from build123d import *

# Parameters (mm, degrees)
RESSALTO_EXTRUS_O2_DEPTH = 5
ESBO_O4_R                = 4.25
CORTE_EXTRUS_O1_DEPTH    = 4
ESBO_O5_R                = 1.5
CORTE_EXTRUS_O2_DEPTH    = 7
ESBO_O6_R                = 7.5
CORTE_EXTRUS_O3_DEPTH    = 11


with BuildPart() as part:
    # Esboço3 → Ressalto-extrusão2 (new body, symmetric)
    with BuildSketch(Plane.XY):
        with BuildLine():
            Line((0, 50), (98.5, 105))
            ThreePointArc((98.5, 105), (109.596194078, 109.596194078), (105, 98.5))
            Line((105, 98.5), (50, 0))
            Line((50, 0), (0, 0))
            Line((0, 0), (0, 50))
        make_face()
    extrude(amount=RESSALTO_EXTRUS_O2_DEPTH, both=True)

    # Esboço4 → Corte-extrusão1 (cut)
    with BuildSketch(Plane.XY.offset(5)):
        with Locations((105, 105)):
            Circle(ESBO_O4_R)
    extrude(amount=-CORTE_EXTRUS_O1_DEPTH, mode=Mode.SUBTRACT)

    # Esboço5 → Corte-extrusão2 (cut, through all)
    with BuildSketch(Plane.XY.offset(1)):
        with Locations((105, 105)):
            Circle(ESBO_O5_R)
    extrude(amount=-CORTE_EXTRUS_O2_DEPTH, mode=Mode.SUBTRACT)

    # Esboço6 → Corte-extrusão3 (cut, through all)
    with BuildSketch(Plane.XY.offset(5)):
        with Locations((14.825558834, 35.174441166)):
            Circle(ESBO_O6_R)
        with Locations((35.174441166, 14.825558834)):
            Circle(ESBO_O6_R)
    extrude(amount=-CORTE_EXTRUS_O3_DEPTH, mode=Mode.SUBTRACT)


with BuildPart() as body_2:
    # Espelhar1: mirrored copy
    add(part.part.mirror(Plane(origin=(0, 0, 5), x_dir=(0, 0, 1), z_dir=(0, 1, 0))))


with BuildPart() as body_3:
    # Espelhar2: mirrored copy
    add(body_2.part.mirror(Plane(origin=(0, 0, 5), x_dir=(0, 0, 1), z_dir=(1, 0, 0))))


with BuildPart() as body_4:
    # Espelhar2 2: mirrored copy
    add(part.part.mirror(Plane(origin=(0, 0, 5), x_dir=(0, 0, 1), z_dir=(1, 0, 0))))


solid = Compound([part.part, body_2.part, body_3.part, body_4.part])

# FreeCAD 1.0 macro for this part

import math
import FreeCAD as App
import Part
import Sketcher

V = App.Vector

doc = App.newDocument("Part")
params = doc.addObject("Spreadsheet::Sheet", "Params")
for row, (alias, value) in enumerate([
    ("sketch1_radius", "6.5 mm"),
    ("sketch1_width", "50 mm"),
    ("pad1_length", "10 mm"),
    ("sketch2_diameter", "8.5 mm"),
    ("pocket1_length", "4 mm"),
    ("sketch3_diameter", "3 mm"),
    ("sketch4_diameter", "15 mm"),
], start=1):
    params.set(f"A{row}", alias)
    params.set(f"B{row}", "=" + value)
    params.setAlias(f"B{row}", alias)

body = doc.addObject("PartDesign::Body", "Body")

# Sketch on XY plane
sketch1 = body.newObject("Sketcher::SketchObject", "Sketch")
sketch1.AttachmentSupport = (doc.getObject("XY_Plane"), [""])
sketch1.MapMode = "FlatFace"
sketch1.addGeometry([
    Part.LineSegment(V(98, 105, 0), V(0, 50, 0)),  # 0
    Part.LineSegment(V(0, 50, 0), V(0, 0, 0)),  # 1
    Part.LineSegment(V(0, 0, 0), V(50, 0, 0)),  # 2
    Part.LineSegment(V(50, 0, 0), V(105, 98, 0)),  # 3
    Part.ArcOfCircle(Part.Circle(V(105, 105, 0), V(0, 0, 1), 6), math.radians(-90), math.radians(180)),  # 4
], False)
sketch1.addConstraint([
    Sketcher.Constraint("Coincident", 0, 2, 1, 1),
    Sketcher.Constraint("Coincident", 1, 2, 2, 1),
    Sketcher.Constraint("Coincident", 2, 2, 3, 1),
    Sketcher.Constraint("Coincident", 3, 2, 4, 1),
    Sketcher.Constraint("Coincident", 4, 2, 0, 1),
    Sketcher.Constraint("Vertical", 1),
    Sketcher.Constraint("Horizontal", 2),
    Sketcher.Constraint("Coincident", 1, 2, -1, 1),
    Sketcher.Constraint("Vertical", 4, 3, 3, 2),
    Sketcher.Constraint("Equal", 2, 1),
    Sketcher.Constraint("Equal", 0, 3),
    Sketcher.Constraint("Radius", 4, 6.5),
    Sketcher.Constraint("DistanceX", 2, 1, 2, 2, 50.0),
    Sketcher.Constraint("DistanceX", -1, 1, 4, 3, 105.0),
    Sketcher.Constraint("DistanceY", -1, 1, 4, 3, 105.0),
])
sketch1.setExpression("Constraints[11]", "Params.sketch1_radius")
sketch1.setExpression("Constraints[12]", "Params.sketch1_width")
pad1 = body.newObject("PartDesign::Pad", "Pad")
pad1.Profile = sketch1
pad1.setExpression("Length", "Params.pad1_length")
pad1.Midplane = True

# Sketch on XY plane
sketch2 = body.newObject("Sketcher::SketchObject", "Sketch001")
sketch2.AttachmentSupport = (doc.getObject("XY_Plane"), [""])
sketch2.MapMode = "FlatFace"
sketch2.AttachmentOffset = App.Placement(V(0, 0, 5), App.Rotation())
sketch2.addGeometry(Part.Circle(V(105, 105, 0), V(0, 0, 1), 4.2), False)
sketch2.addConstraint([
    Sketcher.Constraint("Diameter", 0, 8.5),
    Sketcher.Constraint("DistanceX", -1, 1, 0, 3, 105.0),
    Sketcher.Constraint("DistanceY", -1, 1, 0, 3, 105.0),
])
sketch2.setExpression("Constraints[0]", "Params.sketch2_diameter")
pocket1 = body.newObject("PartDesign::Pocket", "Pocket")
pocket1.Profile = sketch2
pocket1.setExpression("Length", "Params.pocket1_length")

# Sketch on XY plane
sketch3 = body.newObject("Sketcher::SketchObject", "Sketch002")
sketch3.AttachmentSupport = (doc.getObject("XY_Plane"), [""])
sketch3.MapMode = "FlatFace"
sketch3.AttachmentOffset = App.Placement(V(0, 0, 1), App.Rotation())
sketch3.addGeometry(Part.Circle(V(105, 105, 0), V(0, 0, 1), 1.5), False)
sketch3.addConstraint([
    Sketcher.Constraint("Diameter", 0, 3.0),
    Sketcher.Constraint("DistanceX", -1, 1, 0, 3, 105.0),
    Sketcher.Constraint("DistanceY", -1, 1, 0, 3, 105.0),
])
sketch3.setExpression("Constraints[0]", "Params.sketch3_diameter")
pocket2 = body.newObject("PartDesign::Pocket", "Pocket001")
pocket2.Profile = sketch3
pocket2.Type = "ThroughAll"

# Sketch on XY plane
sketch4 = body.newObject("Sketcher::SketchObject", "Sketch003")
sketch4.AttachmentSupport = (doc.getObject("XY_Plane"), [""])
sketch4.MapMode = "FlatFace"
sketch4.AttachmentOffset = App.Placement(V(0, 0, 5), App.Rotation())
sketch4.addGeometry([
    Part.Circle(V(15, 35, 0), V(0, 0, 1), 8),
    Part.Circle(V(35, 15, 0), V(0, 0, 1), 8),
], False)
sketch4.addConstraint([
    Sketcher.Constraint("Equal", 0, 1),
    Sketcher.Constraint("Diameter", 0, 15.0),
    Sketcher.Constraint("DistanceX", -1, 1, 0, 3, 14.825559),
    Sketcher.Constraint("DistanceY", -1, 1, 0, 3, 35.174441),
    Sketcher.Constraint("DistanceX", -1, 1, 1, 3, 35.174441),
    Sketcher.Constraint("DistanceY", -1, 1, 1, 3, 14.825559),
])
sketch4.setExpression("Constraints[1]", "Params.sketch4_diameter")
pocket3 = body.newObject("PartDesign::Pocket", "Pocket002")
pocket3.Profile = sketch4
pocket3.Type = "ThroughAll"
body2 = doc.addObject("PartDesign::Body", "Body001")
doc.recompute()

mirroring = doc.addObject("Part::Mirroring", "Mirroring")
mirroring.Source = body
mirroring.Base = V(0, 0, 5)
mirroring.Normal = V(0, 1, 0)
body2.BaseFeature = mirroring
doc.recompute()
body3 = doc.addObject("PartDesign::Body", "Body002")
doc.recompute()

mirroring2 = doc.addObject("Part::Mirroring", "Mirroring001")
mirroring2.Source = body2
mirroring2.Base = V(0, 0, 5)
mirroring2.Normal = V(1, 0, 0)
body3.BaseFeature = mirroring2
doc.recompute()
body4 = doc.addObject("PartDesign::Body", "Body003")
doc.recompute()

mirroring3 = doc.addObject("Part::Mirroring", "Mirroring002")
mirroring3.Source = body
mirroring3.Base = V(0, 0, 5)
mirroring3.Normal = V(1, 0, 0)
body4.BaseFeature = mirroring3
doc.recompute()
mirroring.Visibility = False
mirroring2.Visibility = False
mirroring3.Visibility = False

doc.recompute()
